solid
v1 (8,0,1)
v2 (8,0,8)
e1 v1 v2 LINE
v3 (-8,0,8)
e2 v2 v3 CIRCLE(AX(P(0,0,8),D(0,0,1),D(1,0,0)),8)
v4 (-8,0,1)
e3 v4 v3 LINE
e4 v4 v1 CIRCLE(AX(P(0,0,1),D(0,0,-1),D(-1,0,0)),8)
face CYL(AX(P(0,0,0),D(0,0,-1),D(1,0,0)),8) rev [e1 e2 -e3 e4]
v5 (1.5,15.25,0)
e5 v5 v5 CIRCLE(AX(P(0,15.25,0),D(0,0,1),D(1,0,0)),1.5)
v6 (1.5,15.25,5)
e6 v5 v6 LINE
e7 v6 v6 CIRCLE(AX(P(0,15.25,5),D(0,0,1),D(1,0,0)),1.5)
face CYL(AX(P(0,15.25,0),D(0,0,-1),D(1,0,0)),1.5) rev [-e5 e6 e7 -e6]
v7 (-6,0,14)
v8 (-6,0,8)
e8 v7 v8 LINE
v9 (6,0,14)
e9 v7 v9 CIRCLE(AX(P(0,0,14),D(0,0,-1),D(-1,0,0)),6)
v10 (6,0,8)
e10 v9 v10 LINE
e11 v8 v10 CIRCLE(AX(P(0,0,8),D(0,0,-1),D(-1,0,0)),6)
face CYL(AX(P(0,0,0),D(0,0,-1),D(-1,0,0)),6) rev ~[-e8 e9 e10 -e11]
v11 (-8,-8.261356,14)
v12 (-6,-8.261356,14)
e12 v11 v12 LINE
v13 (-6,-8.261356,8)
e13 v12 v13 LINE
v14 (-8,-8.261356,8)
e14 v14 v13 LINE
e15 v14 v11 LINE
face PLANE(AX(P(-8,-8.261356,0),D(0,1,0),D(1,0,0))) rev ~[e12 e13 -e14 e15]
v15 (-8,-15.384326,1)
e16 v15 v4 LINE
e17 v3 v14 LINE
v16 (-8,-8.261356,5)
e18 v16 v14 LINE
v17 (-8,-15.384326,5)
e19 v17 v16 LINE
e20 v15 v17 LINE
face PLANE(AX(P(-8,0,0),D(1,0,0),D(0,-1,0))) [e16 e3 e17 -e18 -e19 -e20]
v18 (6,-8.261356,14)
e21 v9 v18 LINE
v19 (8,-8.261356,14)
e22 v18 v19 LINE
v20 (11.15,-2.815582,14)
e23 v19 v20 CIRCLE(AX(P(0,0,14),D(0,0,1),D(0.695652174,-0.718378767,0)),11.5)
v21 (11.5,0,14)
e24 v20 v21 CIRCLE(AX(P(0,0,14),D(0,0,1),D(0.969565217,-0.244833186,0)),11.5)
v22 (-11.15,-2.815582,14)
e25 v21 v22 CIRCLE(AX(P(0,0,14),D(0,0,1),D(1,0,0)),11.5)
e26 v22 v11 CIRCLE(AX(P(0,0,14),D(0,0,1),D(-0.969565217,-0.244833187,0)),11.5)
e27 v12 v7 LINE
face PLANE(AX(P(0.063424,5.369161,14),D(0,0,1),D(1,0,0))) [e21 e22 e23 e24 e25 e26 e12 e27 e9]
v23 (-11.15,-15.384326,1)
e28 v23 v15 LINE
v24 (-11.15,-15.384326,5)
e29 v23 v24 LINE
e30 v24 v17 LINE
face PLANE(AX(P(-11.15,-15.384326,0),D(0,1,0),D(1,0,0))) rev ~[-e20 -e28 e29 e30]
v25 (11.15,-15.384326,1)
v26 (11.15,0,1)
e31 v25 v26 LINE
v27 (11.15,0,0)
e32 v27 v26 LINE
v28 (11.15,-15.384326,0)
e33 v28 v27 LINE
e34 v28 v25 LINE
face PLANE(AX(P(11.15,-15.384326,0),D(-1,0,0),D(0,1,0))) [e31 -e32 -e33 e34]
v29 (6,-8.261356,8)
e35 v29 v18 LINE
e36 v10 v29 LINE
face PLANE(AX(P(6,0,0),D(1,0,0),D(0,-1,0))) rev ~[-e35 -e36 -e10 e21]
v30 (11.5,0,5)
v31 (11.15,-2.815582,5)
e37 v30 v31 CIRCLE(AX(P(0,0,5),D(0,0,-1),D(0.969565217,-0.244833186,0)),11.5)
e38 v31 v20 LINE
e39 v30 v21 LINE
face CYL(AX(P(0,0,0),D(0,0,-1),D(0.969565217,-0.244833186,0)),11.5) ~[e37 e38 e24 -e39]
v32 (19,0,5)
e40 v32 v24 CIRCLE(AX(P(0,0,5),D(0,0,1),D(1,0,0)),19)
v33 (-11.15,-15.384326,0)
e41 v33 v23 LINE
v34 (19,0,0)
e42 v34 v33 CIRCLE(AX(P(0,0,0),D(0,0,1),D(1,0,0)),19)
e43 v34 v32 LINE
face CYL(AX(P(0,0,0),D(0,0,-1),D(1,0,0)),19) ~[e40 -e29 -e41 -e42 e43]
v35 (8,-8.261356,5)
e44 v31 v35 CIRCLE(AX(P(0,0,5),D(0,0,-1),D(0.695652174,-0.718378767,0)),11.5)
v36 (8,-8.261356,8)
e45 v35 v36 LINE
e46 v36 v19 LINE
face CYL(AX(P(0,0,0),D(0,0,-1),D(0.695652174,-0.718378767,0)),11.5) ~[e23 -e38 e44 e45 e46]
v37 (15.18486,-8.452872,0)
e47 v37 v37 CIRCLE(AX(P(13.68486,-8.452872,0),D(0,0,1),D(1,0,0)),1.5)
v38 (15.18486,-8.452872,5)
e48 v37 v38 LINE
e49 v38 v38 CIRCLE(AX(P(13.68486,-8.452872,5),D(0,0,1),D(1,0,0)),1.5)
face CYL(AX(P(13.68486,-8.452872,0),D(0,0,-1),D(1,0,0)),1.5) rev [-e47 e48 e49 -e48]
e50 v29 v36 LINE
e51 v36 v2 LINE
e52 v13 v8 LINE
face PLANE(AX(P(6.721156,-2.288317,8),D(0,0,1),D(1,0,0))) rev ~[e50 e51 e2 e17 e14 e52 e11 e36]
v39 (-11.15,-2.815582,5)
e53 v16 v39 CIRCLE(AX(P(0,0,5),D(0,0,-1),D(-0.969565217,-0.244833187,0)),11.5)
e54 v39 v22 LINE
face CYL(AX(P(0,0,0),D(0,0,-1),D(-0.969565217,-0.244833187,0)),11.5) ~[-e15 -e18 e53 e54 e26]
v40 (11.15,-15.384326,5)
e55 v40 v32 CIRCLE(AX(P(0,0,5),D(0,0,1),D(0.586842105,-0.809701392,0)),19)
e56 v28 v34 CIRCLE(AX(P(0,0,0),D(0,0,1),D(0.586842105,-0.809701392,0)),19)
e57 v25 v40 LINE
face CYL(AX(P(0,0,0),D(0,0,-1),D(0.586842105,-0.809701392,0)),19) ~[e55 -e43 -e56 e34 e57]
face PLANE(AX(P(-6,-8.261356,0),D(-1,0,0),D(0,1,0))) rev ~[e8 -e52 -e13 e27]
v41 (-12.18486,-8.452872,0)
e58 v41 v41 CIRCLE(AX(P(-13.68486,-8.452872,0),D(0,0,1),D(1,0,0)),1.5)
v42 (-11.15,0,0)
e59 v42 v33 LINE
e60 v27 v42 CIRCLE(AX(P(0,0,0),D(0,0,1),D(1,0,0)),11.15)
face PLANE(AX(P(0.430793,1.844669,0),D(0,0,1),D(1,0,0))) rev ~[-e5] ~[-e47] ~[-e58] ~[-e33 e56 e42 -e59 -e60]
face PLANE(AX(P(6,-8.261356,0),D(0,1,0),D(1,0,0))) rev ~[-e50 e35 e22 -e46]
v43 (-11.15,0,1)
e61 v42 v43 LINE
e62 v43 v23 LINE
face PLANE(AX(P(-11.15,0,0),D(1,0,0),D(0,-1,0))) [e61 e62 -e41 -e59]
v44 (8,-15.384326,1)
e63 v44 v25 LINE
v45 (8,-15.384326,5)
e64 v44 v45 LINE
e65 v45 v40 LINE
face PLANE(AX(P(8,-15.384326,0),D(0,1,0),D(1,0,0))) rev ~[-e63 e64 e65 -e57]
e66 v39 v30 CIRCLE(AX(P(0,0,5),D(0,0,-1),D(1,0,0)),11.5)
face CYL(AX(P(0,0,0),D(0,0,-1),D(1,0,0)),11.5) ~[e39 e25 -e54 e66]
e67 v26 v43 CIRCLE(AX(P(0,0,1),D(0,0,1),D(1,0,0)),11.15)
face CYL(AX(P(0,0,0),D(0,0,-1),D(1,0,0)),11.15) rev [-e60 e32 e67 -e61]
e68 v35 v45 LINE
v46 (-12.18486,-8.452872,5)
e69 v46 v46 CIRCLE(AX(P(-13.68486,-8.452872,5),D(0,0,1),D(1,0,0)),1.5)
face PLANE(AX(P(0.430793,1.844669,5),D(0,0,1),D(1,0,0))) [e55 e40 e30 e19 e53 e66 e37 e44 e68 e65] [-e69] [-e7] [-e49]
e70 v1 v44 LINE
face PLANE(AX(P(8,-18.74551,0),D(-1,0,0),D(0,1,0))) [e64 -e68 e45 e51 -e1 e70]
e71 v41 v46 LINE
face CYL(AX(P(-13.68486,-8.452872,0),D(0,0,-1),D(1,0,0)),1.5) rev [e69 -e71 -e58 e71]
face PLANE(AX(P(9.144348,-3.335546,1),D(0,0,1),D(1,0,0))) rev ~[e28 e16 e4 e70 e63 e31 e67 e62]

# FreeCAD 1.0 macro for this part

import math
import FreeCAD as App
import Part
import Sketcher
from FreeCAD import Vector
Q = App.Units.Quantity

doc = App.newDocument("Part")
params = doc.addObject("Spreadsheet::Sheet", "Params")
for row, (alias, value) in enumerate([
    ("sketch1_diameter", "3 mm"),
    ("sketch1_radius", "19 mm"),
    ("sketch1_radius2", "6 mm"),
    ("sketch1_radius3", "8 mm"),
    ("sketch1_radius4", "11.5 mm"),
    ("pad1_length", "5 mm"),
    ("sketch2_radius", "6 mm"),
    ("sketch2_radius2", "11.5 mm"),
    ("sketch2_width", "2 mm"),
    ("pad2_length", "14 mm"),
    ("sketch3_radius", "8 mm"),
    ("sketch3_radius2", "6 mm"),
    ("sketch3_radius3", "11.5 mm"),
    ("pocket1_length", "8 mm"),
    ("sketch4_radius", "8 mm"),
    ("sketch4_radius2", "11.15 mm"),
    ("pocket2_length", "1 mm"),
], start=1):
    params.set(f"A{row}", alias)
    params.set(f"B{row}", "=" + value)
    params.setAlias(f"B{row}", alias)

body = doc.addObject("PartDesign::Body", "Body")

# Sketch on XY plane
sketch1 = doc.addObject("Sketcher::SketchObject", "Sketch")
body.addObject(sketch1)
sketch1.AttachmentSupport = (doc.XY_Plane, [""])
sketch1.MapMode = "FlatFace"
sketch1.addGeometry([
    Part.ArcOfCircle(Part.Circle(Vector(0, 0, 0), Vector(0, 0, 1), 19), math.radians(-54), math.radians(0)),  # 0
    Part.ArcOfCircle(Part.Circle(Vector(0, 0, 0), Vector(0, 0, 1), 19), math.radians(0), math.radians(234)),  # 1
    Part.LineSegment(Vector(-11.2, -15.4, 0), Vector(-8, -15.4, 0)),  # 2
    Part.LineSegment(Vector(-8, -15.4, 0), Vector(-8, -17.2, 0)),  # 3
    Part.ArcOfCircle(Part.Circle(Vector(0, 0, 0), Vector(0, 0, 1), 19), math.radians(-114.9), math.radians(-108.41)),  # 4
    Part.LineSegment(Vector(-6, -18, 0), Vector(-6, -9.8, 0)),  # 5
    Part.ArcOfCircle(Part.Circle(Vector(0, 0, 0), Vector(0, 0, 1), 11.5), math.radians(-134.08), math.radians(-121.45)),  # 6
    Part.LineSegment(Vector(-8, -8.3, 0), Vector(-6, -8.3, 0)),  # 7
    Part.LineSegment(Vector(-6, -8.3, 0), Vector(-6, 0, 0)),  # 8
    Part.ArcOfCircle(Part.Circle(Vector(0, 0, 0), Vector(0, 0, 1), 6), math.radians(0), math.radians(180)),  # 9
    Part.LineSegment(Vector(6, 0, 0), Vector(6, -5.3, 0)),  # 10
    Part.ArcOfCircle(Part.Circle(Vector(0, 0, 0), Vector(0, 0, 1), 8), math.radians(-41), math.radians(0)),  # 11
    Part.LineSegment(Vector(8, 0, 0), Vector(8, -8.3, 0)),  # 12
    Part.LineSegment(Vector(8, -8.3, 0), Vector(6, -8.3, 0)),  # 13
    Part.LineSegment(Vector(6, -8.3, 0), Vector(6, -18, 0)),  # 14
    Part.ArcOfCircle(Part.Circle(Vector(0, 0, 0), Vector(0, 0, 1), 19), math.radians(-71.59), math.radians(-65.1)),  # 15
    Part.LineSegment(Vector(8, -17.2, 0), Vector(8, -15.4, 0)),  # 16
    Part.LineSegment(Vector(8, -15.4, 0), Vector(11.2, -15.4, 0)),  # 17
    Part.Circle(Vector(-13.7, -8.5, 0), Vector(0, 0, 1), 1.5),  # 18
    Part.Circle(Vector(13.7, -8.5, 0), Vector(0, 0, 1), 1.5),  # 19
    Part.Circle(Vector(0, 15.2, 0), Vector(0, 0, 1), 1.5),  # 20
], False)
sketch1.addConstraint([
    Sketcher.Constraint("Tangent", 0, 2, 1, 1),
    Sketcher.Constraint("Coincident", 1, 2, 2, 1),
    Sketcher.Constraint("Coincident", 2, 2, 3, 1),
    Sketcher.Constraint("Coincident", 3, 2, 4, 1),
    Sketcher.Constraint("Coincident", 4, 2, 5, 1),
    Sketcher.Constraint("Coincident", 5, 2, 6, 2),
    Sketcher.Constraint("Coincident", 6, 1, 7, 1),
    Sketcher.Constraint("Coincident", 7, 2, 8, 1),
    Sketcher.Constraint("Tangent", 8, 2, 9, 2),
    Sketcher.Constraint("Tangent", 9, 1, 10, 1),
    Sketcher.Constraint("Coincident", 10, 2, 11, 1),
    Sketcher.Constraint("Tangent", 11, 2, 12, 1),
    Sketcher.Constraint("Coincident", 12, 2, 13, 1),
    Sketcher.Constraint("Coincident", 13, 2, 14, 1),
    Sketcher.Constraint("Coincident", 14, 2, 15, 1),
    Sketcher.Constraint("Coincident", 15, 2, 16, 1),
    Sketcher.Constraint("Coincident", 16, 2, 17, 1),
    Sketcher.Constraint("Coincident", 17, 2, 0, 1),
    Sketcher.Constraint("Horizontal", 2),
    Sketcher.Constraint("Vertical", 3),
    Sketcher.Constraint("Vertical", 5),
    Sketcher.Constraint("Horizontal", 7),
    Sketcher.Constraint("Vertical", 8),
    Sketcher.Constraint("Vertical", 10),
    Sketcher.Constraint("Vertical", 12),
    Sketcher.Constraint("Horizontal", 13),
    Sketcher.Constraint("Vertical", 14),
    Sketcher.Constraint("Vertical", 16),
    Sketcher.Constraint("Horizontal", 17),
    Sketcher.Constraint("Coincident", 0, 3, -1, 1),
    Sketcher.Constraint("Coincident", 4, 3, -1, 1),
    Sketcher.Constraint("Coincident", 6, 3, -1, 1),
    Sketcher.Constraint("Coincident", 9, 3, -1, 1),
    Sketcher.Constraint("Coincident", 11, 3, -1, 1),
    Sketcher.Constraint("Coincident", 15, 3, -1, 1),
    Sketcher.Constraint("Equal", 0, 1),
    Sketcher.Constraint("Equal", 1, 4),
    Sketcher.Constraint("Equal", 4, 15),
    Sketcher.Constraint("Equal", 18, 19),
    Sketcher.Constraint("Equal", 19, 20),
    Sketcher.Constraint("Symmetric", 18, 3, 19, 3, -2),
    Sketcher.Constraint("Symmetric", 6, 1, 12, 2, -2),
    Sketcher.Constraint("Symmetric", 2, 2, 16, 2, -2),
    Sketcher.Constraint("PointOnObject", 20, 3, -2),
    Sketcher.Constraint("PointOnObject", 0, 2, -1),
    Sketcher.Constraint("Horizontal", 4, 2, 14, 2),
    Sketcher.Constraint("Vertical", 3, 2, 6, 1),
    Sketcher.Constraint("Vertical", 5, 2, 7, 2),
    Sketcher.Constraint("Diameter", 18, Q("3 mm")),
    Sketcher.Constraint("Radius", 0, Q("19 mm")),
    Sketcher.Constraint("Radius", 9, Q("6 mm")),
    Sketcher.Constraint("Radius", 11, Q("8 mm")),
    Sketcher.Constraint("Radius", 6, Q("11.5 mm")),
    Sketcher.Constraint("DistanceX", 2, 1, 2, 2, Q("3.15 mm")),
    Sketcher.Constraint("DistanceY", -1, 1, 20, 3, Q("15.25 mm")),
    Sketcher.Constraint("DistanceX", 18, 3, -1, 1, Q("13.68486 mm")),
    Sketcher.Constraint("DistanceY", 18, 3, -1, 1, Q("8.452872 mm")),
])
sketch1.setExpression("Constraints[48]", "Params.sketch1_diameter")
sketch1.setExpression("Constraints[49]", "Params.sketch1_radius")
sketch1.setExpression("Constraints[50]", "Params.sketch1_radius2")
sketch1.setExpression("Constraints[51]", "Params.sketch1_radius3")
sketch1.setExpression("Constraints[52]", "Params.sketch1_radius4")
pad1 = doc.addObject("PartDesign::Pad", "Pad")
body.addObject(pad1)
pad1.Profile = sketch1
pad1.setExpression("Length", "Params.pad1_length")

# Sketch on XY plane
sketch2 = doc.addObject("Sketcher::SketchObject", "Sketch001")
body.addObject(sketch2)
sketch2.AttachmentSupport = (doc.XY_Plane, [""])
sketch2.MapMode = "FlatFace"
sketch2.addGeometry([
    Part.ArcOfCircle(Part.Circle(Vector(0, 0, 0), Vector(0, 0, 1), 11.5), math.radians(-14.17), math.radians(0)),  # 0
    Part.ArcOfCircle(Part.Circle(Vector(0, 0, 0), Vector(0, 0, 1), 11.5), math.radians(0), math.radians(194)),  # 1
    Part.ArcOfCircle(Part.Circle(Vector(0, 0, 0), Vector(0, 0, 1), 11.5), math.radians(-166), math.radians(-134)),  # 2
    Part.LineSegment(Vector(-8, -8.3, 0), Vector(-6, -8.3, 0)),  # 3
    Part.LineSegment(Vector(-6, -8.3, 0), Vector(-6, 0, 0)),  # 4
    Part.ArcOfCircle(Part.Circle(Vector(0, 0, 0), Vector(0, 0, 1), 6), math.radians(0), math.radians(180)),  # 5
    Part.LineSegment(Vector(6, 0, 0), Vector(6, -8.3, 0)),  # 6
    Part.LineSegment(Vector(6, -8.3, 0), Vector(8, -8.3, 0)),  # 7
    Part.ArcOfCircle(Part.Circle(Vector(0, 0, 0), Vector(0, 0, 1), 11.5), math.radians(-46), math.radians(-14)),  # 8
], False)
sketch2.addConstraint([
    Sketcher.Constraint("Tangent", 0, 2, 1, 1),
    Sketcher.Constraint("Tangent", 1, 2, 2, 1),
    Sketcher.Constraint("Coincident", 2, 2, 3, 1),
    Sketcher.Constraint("Coincident", 3, 2, 4, 1),
    Sketcher.Constraint("Tangent", 4, 2, 5, 2),
    Sketcher.Constraint("Tangent", 5, 1, 6, 1),
    Sketcher.Constraint("Coincident", 6, 2, 7, 1),
    Sketcher.Constraint("Coincident", 7, 2, 8, 1),
    Sketcher.Constraint("Tangent", 8, 2, 0, 1),
    Sketcher.Constraint("Horizontal", 3),
    Sketcher.Constraint("Vertical", 4),
    Sketcher.Constraint("Vertical", 6),
    Sketcher.Constraint("Horizontal", 7),
    Sketcher.Constraint("Coincident", 0, 3, -1, 1),
    Sketcher.Constraint("Coincident", 2, 3, -1, 1),
    Sketcher.Constraint("Coincident", 5, 3, -1, 1),
    Sketcher.Constraint("Equal", 2, 8),
    Sketcher.Constraint("PointOnObject", 0, 2, -1),
    Sketcher.Constraint("Horizontal", 3, 2, 6, 2),
    Sketcher.Constraint("Horizontal", 1, 2, 8, 2),
    Sketcher.Constraint("Radius", 5, Q("6 mm")),
    Sketcher.Constraint("Radius", 0, Q("11.5 mm")),
    Sketcher.Constraint("DistanceX", 3, 1, 3, 2, Q("2 mm")),
    Sketcher.Constraint("DistanceX", 1, 2, -1, 1, Q("11.15 mm")),
])
sketch2.setExpression("Constraints[20]", "Params.sketch2_radius")
sketch2.setExpression("Constraints[21]", "Params.sketch2_radius2")
sketch2.setExpression("Constraints[22]", "Params.sketch2_width")
pad2 = doc.addObject("PartDesign::Pad", "Pad001")
body.addObject(pad2)
pad2.Profile = sketch2
pad2.setExpression("Length", "Params.pad2_length")

# Sketch on XY plane
sketch3 = doc.addObject("Sketcher::SketchObject", "Sketch002")
body.addObject(sketch3)
sketch3.AttachmentSupport = (doc.XY_Plane, [""])
sketch3.MapMode = "FlatFace"
sketch3.addGeometry([
    Part.ArcOfCircle(Part.Circle(Vector(0, 0, 0), Vector(0, 0, 1), 8), math.radians(0), math.radians(180)),  # 0
    Part.LineSegment(Vector(-8, 0, 0), Vector(-8, -8.3, 0)),  # 1
    Part.LineSegment(Vector(-8, -8.3, 0), Vector(-6, -8.3, 0)),  # 2
    Part.LineSegment(Vector(-6, -8.3, 0), Vector(-6, 0, 0)),  # 3
    Part.ArcOfCircle(Part.Circle(Vector(0, 0, 0), Vector(0, 0, 1), 6), math.radians(0), math.radians(180)),  # 4
    Part.LineSegment(Vector(6, 0, 0), Vector(6, -18.7, 0)),  # 5
    Part.LineSegment(Vector(6, -18.7, 0), Vector(8, -18.7, 0)),  # 6
    Part.LineSegment(Vector(8, -18.7, 0), Vector(8, 0, 0)),  # 7
    Part.LineSegment(Vector(-8, -18.7, 0), Vector(-6, -18.7, 0)),  # 8
    Part.LineSegment(Vector(-6, -18.7, 0), Vector(-6, -9.8, 0)),  # 9
    Part.ArcOfCircle(Part.Circle(Vector(0, 0, 0), Vector(0, 0, 1), 11.5), math.radians(-134.08), math.radians(-121.45)),  # 10
    Part.LineSegment(Vector(-8, -8.3, 0), Vector(-8, -18.7, 0)),  # 11
], False)
sketch3.addConstraint([
    Sketcher.Constraint("Tangent", 0, 2, 1, 1),
    Sketcher.Constraint("Coincident", 1, 2, 2, 1),
    Sketcher.Constraint("Coincident", 2, 2, 3, 1),
    Sketcher.Constraint("Tangent", 3, 2, 4, 2),
    Sketcher.Constraint("Tangent", 4, 1, 5, 1),
    Sketcher.Constraint("Coincident", 5, 2, 6, 1),
    Sketcher.Constraint("Coincident", 6, 2, 7, 1),
    Sketcher.Constraint("Tangent", 7, 2, 0, 1),
    Sketcher.Constraint("Coincident", 8, 2, 9, 1),
    Sketcher.Constraint("Coincident", 9, 2, 10, 2),
    Sketcher.Constraint("Coincident", 10, 1, 11, 1),
    Sketcher.Constraint("Coincident", 11, 2, 8, 1),
    Sketcher.Constraint("Vertical", 1),
    Sketcher.Constraint("Horizontal", 2),
    Sketcher.Constraint("Vertical", 3),
    Sketcher.Constraint("Vertical", 5),
    Sketcher.Constraint("Horizontal", 6),
    Sketcher.Constraint("Vertical", 7),
    Sketcher.Constraint("Horizontal", 8),
    Sketcher.Constraint("Vertical", 9),
    Sketcher.Constraint("Vertical", 11),
    Sketcher.Constraint("Coincident", 0, 3, -1, 1),
    Sketcher.Constraint("Coincident", 4, 3, -1, 1),
    Sketcher.Constraint("Coincident", 10, 3, -1, 1),
    Sketcher.Constraint("Coincident", 10, 1, 1, 2),
    Sketcher.Constraint("Symmetric", 5, 2, 8, 2, -2),
    Sketcher.Constraint("Radius", 0, Q("8 mm")),
    Sketcher.Constraint("Radius", 4, Q("6 mm")),
    Sketcher.Constraint("Radius", 10, Q("11.5 mm")),
    Sketcher.Constraint("DistanceY", 9, 1, 9, 2, Q("8.934801 mm")),
])
sketch3.setExpression("Constraints[26]", "Params.sketch3_radius")
sketch3.setExpression("Constraints[27]", "Params.sketch3_radius2")
sketch3.setExpression("Constraints[28]", "Params.sketch3_radius3")
pocket1 = doc.addObject("PartDesign::Pocket", "Pocket")
body.addObject(pocket1)
pocket1.Profile = sketch3
pocket1.setExpression("Length", "Params.pocket1_length")
pocket1.Reversed = True

# Sketch on XY plane
sketch4 = doc.addObject("Sketcher::SketchObject", "Sketch003")
body.addObject(sketch4)
sketch4.AttachmentSupport = (doc.XY_Plane, [""])
sketch4.MapMode = "FlatFace"
sketch4.addGeometry([
    Part.LineSegment(Vector(8, 0, 0), Vector(8, -15.4, 0)),  # 0
    Part.LineSegment(Vector(8, -15.4, 0), Vector(11.2, -15.4, 0)),  # 1
    Part.LineSegment(Vector(11.2, -15.4, 0), Vector(11.2, 0, 0)),  # 2
    Part.ArcOfCircle(Part.Circle(Vector(0, 0, 0), Vector(0, 0, 1), 11.2), math.radians(0), math.radians(180)),  # 3
    Part.LineSegment(Vector(-11.2, 0, 0), Vector(-11.2, -15.4, 0)),  # 4
    Part.LineSegment(Vector(-11.2, -15.4, 0), Vector(-8, -15.4, 0)),  # 5
    Part.LineSegment(Vector(-8, -15.4, 0), Vector(-8, 0, 0)),  # 6
    Part.ArcOfCircle(Part.Circle(Vector(0, 0, 0), Vector(0, 0, 1), 8), math.radians(0), math.radians(180)),  # 7
], False)
sketch4.addConstraint([
    Sketcher.Constraint("Coincident", 0, 2, 1, 1),
    Sketcher.Constraint("Coincident", 1, 2, 2, 1),
    Sketcher.Constraint("Tangent", 2, 2, 3, 1),
    Sketcher.Constraint("Tangent", 3, 2, 4, 1),
    Sketcher.Constraint("Coincident", 4, 2, 5, 1),
    Sketcher.Constraint("Coincident", 5, 2, 6, 1),
    Sketcher.Constraint("Tangent", 6, 2, 7, 2),
    Sketcher.Constraint("Tangent", 7, 1, 0, 1),
    Sketcher.Constraint("Vertical", 0),
    Sketcher.Constraint("Horizontal", 1),
    Sketcher.Constraint("Vertical", 2),
    Sketcher.Constraint("Vertical", 4),
    Sketcher.Constraint("Horizontal", 5),
    Sketcher.Constraint("Vertical", 6),
    Sketcher.Constraint("Coincident", 3, 3, -1, 1),
    Sketcher.Constraint("Coincident", 7, 3, -1, 1),
    Sketcher.Constraint("Horizontal", 1, 2, 4, 2),
    Sketcher.Constraint("Radius", 7, Q("8 mm")),
    Sketcher.Constraint("Radius", 3, Q("11.15 mm")),
    Sketcher.Constraint("DistanceY", 0, 2, 0, 1, Q("15.384326 mm")),
])
sketch4.setExpression("Constraints[17]", "Params.sketch4_radius")
sketch4.setExpression("Constraints[18]", "Params.sketch4_radius2")
pocket2 = doc.addObject("PartDesign::Pocket", "Pocket001")
body.addObject(pocket2)
pocket2.Profile = sketch4
pocket2.setExpression("Length", "Params.pocket2_length")
pocket2.Reversed = True

doc.recompute()
